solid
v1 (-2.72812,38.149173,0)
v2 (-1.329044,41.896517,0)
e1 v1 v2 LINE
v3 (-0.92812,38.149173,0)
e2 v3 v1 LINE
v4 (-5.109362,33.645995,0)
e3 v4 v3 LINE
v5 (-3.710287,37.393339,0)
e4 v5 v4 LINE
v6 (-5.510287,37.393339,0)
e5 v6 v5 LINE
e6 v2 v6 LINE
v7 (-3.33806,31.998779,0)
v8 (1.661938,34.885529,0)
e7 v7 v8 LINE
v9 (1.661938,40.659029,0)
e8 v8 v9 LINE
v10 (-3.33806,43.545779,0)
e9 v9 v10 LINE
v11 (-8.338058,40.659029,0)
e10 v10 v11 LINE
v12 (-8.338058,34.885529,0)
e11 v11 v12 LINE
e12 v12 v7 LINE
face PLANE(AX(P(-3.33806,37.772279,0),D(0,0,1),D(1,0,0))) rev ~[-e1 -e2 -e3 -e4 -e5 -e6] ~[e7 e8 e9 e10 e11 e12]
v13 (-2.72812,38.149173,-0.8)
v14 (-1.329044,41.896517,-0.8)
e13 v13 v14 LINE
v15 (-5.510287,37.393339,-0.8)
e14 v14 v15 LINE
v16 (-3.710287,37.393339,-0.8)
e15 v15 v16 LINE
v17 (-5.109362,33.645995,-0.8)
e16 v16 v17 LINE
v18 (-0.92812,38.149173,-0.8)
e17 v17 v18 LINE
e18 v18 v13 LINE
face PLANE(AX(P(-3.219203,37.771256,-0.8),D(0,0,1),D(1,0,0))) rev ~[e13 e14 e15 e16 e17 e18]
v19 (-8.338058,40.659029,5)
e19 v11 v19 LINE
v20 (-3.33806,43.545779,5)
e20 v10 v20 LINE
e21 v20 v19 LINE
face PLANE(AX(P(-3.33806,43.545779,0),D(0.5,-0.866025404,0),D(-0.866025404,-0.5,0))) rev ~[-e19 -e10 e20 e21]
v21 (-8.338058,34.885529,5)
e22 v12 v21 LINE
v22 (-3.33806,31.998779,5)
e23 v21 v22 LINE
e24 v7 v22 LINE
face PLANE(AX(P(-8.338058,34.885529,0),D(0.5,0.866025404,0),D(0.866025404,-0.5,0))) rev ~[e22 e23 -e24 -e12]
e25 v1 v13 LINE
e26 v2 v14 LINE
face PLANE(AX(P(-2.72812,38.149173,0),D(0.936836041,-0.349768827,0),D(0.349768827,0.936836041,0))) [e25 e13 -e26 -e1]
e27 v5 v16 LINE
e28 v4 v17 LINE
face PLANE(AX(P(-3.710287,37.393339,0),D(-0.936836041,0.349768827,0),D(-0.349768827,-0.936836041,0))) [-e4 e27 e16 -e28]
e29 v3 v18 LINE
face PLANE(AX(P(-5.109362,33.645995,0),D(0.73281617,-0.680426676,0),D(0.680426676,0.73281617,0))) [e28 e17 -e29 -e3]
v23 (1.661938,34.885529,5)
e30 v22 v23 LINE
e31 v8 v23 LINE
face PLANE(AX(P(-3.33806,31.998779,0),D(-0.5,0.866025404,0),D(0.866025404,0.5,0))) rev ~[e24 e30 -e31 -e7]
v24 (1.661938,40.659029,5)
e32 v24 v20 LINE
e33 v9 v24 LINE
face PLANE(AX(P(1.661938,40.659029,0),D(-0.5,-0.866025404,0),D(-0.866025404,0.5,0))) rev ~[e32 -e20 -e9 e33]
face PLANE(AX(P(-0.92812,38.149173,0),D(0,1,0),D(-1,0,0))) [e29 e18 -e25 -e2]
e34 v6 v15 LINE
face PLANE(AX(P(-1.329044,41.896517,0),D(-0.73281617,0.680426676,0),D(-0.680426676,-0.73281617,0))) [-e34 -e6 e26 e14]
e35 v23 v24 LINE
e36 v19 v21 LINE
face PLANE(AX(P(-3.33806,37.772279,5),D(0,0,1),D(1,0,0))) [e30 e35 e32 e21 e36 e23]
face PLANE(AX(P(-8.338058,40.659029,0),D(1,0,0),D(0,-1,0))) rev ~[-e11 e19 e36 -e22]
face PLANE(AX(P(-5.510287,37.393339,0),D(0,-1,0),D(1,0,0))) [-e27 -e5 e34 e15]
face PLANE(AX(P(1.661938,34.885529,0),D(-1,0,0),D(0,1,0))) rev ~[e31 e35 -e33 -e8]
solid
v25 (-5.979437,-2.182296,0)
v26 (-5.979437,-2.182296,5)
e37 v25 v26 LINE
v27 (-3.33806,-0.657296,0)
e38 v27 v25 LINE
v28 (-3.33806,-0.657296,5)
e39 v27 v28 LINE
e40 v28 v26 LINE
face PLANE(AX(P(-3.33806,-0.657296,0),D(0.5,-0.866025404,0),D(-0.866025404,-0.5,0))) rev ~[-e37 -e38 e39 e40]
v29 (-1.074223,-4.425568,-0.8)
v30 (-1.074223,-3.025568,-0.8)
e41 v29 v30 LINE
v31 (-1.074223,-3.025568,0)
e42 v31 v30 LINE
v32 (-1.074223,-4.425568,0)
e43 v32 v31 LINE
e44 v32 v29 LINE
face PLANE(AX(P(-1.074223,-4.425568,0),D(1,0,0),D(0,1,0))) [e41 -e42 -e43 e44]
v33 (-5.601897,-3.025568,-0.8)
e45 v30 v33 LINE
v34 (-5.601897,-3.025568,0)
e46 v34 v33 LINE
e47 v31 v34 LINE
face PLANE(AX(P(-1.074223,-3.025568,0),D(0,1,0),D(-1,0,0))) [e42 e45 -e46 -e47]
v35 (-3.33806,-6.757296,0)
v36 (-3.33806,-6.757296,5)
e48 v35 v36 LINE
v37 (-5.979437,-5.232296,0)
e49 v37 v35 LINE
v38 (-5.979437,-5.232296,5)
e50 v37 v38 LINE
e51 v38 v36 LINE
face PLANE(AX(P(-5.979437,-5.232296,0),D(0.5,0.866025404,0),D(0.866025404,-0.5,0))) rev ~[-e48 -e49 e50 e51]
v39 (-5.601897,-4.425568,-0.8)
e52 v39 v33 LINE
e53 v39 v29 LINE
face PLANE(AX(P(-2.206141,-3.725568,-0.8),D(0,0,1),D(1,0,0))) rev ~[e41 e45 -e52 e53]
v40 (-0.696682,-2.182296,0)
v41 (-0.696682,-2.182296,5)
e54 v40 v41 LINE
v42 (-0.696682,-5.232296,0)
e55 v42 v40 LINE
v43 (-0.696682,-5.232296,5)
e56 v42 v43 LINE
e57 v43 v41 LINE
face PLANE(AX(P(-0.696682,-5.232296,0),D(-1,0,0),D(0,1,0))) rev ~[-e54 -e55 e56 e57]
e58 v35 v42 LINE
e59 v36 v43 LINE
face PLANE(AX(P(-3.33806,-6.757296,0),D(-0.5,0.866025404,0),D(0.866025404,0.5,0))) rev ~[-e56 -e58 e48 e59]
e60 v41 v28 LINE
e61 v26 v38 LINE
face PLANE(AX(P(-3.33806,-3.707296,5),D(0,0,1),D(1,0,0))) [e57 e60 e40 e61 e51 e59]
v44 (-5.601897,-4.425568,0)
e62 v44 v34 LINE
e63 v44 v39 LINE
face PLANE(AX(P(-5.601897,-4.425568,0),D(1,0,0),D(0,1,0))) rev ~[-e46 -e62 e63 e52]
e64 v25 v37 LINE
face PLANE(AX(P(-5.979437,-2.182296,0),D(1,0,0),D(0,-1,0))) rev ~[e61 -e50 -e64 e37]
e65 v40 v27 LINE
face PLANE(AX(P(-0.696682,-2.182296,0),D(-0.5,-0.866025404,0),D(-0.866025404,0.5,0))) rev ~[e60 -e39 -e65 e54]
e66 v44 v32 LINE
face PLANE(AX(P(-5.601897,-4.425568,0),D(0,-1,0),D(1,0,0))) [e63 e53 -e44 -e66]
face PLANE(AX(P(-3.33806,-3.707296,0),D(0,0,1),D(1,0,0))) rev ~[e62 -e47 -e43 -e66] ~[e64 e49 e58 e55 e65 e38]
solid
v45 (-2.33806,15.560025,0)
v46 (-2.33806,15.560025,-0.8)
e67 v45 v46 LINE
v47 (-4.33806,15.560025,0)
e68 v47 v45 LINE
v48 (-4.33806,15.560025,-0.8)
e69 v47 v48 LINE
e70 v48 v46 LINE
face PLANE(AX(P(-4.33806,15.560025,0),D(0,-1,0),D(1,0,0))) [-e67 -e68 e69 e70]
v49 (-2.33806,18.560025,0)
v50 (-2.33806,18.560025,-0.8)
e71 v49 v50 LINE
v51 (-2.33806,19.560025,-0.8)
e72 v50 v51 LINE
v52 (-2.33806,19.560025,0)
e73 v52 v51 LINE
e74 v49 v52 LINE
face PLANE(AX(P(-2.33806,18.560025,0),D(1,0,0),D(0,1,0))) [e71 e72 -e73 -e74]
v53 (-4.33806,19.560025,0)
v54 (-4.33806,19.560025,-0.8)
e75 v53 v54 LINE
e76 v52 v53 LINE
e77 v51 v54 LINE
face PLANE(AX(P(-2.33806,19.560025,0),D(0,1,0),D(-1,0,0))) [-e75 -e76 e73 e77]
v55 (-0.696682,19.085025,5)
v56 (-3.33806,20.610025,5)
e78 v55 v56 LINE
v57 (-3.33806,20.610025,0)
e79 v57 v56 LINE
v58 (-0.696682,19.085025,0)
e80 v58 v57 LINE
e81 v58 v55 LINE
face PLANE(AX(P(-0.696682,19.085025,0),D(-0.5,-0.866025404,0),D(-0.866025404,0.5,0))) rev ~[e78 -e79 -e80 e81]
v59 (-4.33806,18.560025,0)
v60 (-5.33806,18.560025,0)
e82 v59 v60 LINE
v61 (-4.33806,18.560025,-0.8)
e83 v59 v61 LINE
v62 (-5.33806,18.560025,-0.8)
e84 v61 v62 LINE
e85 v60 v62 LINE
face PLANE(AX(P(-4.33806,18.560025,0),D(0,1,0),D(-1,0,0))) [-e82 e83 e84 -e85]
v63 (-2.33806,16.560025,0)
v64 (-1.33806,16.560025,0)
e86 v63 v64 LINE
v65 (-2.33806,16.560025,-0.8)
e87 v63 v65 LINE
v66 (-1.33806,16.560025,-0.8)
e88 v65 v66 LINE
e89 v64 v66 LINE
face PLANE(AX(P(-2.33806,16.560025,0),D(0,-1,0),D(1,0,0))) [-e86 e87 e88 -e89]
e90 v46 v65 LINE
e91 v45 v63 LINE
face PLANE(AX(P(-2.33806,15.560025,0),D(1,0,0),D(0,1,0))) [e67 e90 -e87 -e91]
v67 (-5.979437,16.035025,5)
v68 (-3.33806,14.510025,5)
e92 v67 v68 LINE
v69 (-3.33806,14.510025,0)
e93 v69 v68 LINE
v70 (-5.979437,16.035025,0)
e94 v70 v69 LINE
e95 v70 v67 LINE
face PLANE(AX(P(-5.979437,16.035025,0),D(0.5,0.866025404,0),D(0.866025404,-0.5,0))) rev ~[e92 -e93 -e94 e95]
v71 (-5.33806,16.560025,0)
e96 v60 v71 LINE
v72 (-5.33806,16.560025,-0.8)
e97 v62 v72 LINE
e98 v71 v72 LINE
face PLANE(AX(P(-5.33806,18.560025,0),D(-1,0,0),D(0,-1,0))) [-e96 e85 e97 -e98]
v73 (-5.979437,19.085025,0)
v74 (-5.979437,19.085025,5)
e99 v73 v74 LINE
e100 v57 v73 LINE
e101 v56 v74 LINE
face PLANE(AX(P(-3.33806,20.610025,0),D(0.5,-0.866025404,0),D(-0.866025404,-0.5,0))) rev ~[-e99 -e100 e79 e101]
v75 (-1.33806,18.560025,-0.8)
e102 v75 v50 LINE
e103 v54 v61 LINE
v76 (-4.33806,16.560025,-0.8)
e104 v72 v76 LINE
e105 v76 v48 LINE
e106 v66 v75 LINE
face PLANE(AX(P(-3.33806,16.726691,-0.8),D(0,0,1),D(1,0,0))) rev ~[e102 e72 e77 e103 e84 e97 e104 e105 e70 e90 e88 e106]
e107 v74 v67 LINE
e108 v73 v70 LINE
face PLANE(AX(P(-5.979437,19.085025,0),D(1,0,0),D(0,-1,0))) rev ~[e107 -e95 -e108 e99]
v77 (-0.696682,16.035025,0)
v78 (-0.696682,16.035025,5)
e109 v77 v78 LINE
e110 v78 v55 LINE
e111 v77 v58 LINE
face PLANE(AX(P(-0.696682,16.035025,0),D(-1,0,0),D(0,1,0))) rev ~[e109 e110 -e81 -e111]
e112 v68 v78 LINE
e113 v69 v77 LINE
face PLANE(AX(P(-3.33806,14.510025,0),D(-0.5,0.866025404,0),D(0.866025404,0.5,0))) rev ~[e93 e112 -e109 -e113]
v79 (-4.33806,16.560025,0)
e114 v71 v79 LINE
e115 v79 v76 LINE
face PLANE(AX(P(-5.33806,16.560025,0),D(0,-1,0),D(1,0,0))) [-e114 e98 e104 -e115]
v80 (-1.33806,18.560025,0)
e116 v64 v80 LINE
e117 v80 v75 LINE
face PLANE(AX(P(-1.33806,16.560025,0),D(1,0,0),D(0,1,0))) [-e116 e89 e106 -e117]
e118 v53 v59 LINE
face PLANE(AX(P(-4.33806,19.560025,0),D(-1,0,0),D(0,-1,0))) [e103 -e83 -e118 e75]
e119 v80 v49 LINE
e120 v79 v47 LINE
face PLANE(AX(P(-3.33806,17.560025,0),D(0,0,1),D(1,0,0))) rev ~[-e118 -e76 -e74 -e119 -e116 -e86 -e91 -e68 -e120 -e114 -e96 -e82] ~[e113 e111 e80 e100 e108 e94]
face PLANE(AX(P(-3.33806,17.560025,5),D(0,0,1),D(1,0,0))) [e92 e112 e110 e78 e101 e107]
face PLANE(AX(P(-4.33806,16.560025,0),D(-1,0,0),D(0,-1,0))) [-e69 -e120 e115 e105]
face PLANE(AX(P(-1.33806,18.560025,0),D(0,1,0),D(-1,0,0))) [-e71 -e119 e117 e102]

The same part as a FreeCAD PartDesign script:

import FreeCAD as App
import Part
import Sketcher
Q = App.Units.Quantity

doc = App.newDocument("Part")
body = doc.addObject("PartDesign::Body", "Body")

# Sketch on XY plane
sketch1 = body.newObject("Sketcher::SketchObject", "Sketch")
sketch1.AttachmentSupport = (doc.getObject("XY_Plane"), [""])
sketch1.MapMode = "FlatFace"
sketch1.addGeometry(Part.LineSegment(App.Vector(-3.33806, 14.510025, 0), App.Vector(-0.696682, 16.035025, 0)), False)
sketch1.addGeometry(Part.LineSegment(App.Vector(-0.696682, 16.035025, 0), App.Vector(-0.696682, 19.085025, 0)), False)
sketch1.addGeometry(Part.LineSegment(App.Vector(-0.696682, 19.085025, 0), App.Vector(-3.33806, 20.610025, 0)), False)
sketch1.addGeometry(Part.LineSegment(App.Vector(-3.33806, 20.610025, 0), App.Vector(-5.979437, 19.085025, 0)), False)
sketch1.addGeometry(Part.LineSegment(App.Vector(-5.979437, 19.085025, 0), App.Vector(-5.979437, 16.035025, 0)), False)
sketch1.addGeometry(Part.LineSegment(App.Vector(-5.979437, 16.035025, 0), App.Vector(-3.33806, 14.510025, 0)), False)
sketch1.addConstraint(Sketcher.Constraint("Coincident", 0, 2, 1, 1))
sketch1.addConstraint(Sketcher.Constraint("Coincident", 1, 2, 2, 1))
sketch1.addConstraint(Sketcher.Constraint("Coincident", 2, 2, 3, 1))
sketch1.addConstraint(Sketcher.Constraint("Coincident", 3, 2, 4, 1))
sketch1.addConstraint(Sketcher.Constraint("Coincident", 4, 2, 5, 1))
sketch1.addConstraint(Sketcher.Constraint("Coincident", 5, 2, 0, 1))
sketch1.addConstraint(Sketcher.Constraint("Vertical", 1))
sketch1.addConstraint(Sketcher.Constraint("Vertical", 4))
sketch1.addConstraint(Sketcher.Constraint("Parallel", 0, 3))
sketch1.addConstraint(Sketcher.Constraint("Parallel", 2, 5))
sketch1.addConstraint(Sketcher.Constraint("Horizontal", 1, 2, 3, 2))
sketch1.addConstraint(Sketcher.Constraint("Horizontal", 0, 2, 4, 2))
sketch1.addConstraint(Sketcher.Constraint("Vertical", 2, 2, 5, 2))
sketch1.addConstraint(Sketcher.Constraint("Angle", 0, Q("30 deg")))
sketch1.addConstraint(Sketcher.Constraint("DistanceY", 1, 1, 1, 2, 3.05))
sketch1.addConstraint(Sketcher.Constraint("DistanceY", 5, 2, 2, 2, 6.1))
sketch1.addConstraint(Sketcher.Constraint("DistanceX", 2, 2, -1, 1, 3.33806))
sketch1.addConstraint(Sketcher.Constraint("DistanceY", -1, 1, 0, 2, 16.035025))
pad1 = body.newObject("PartDesign::Pad", "Pad")
pad1.Profile = sketch1
pad1.Length = 5

# Sketch on XY plane
sketch2 = body.newObject("Sketcher::SketchObject", "Sketch001")
sketch2.AttachmentSupport = (doc.getObject("XY_Plane"), [""])
sketch2.MapMode = "FlatFace"
sketch2.addGeometry(Part.LineSegment(App.Vector(-5.33806, 16.560025, 0), App.Vector(-4.33806, 16.560025, 0)), False)
sketch2.addGeometry(Part.LineSegment(App.Vector(-4.33806, 16.560025, 0), App.Vector(-4.33806, 15.560025, 0)), False)
sketch2.addGeometry(Part.LineSegment(App.Vector(-4.33806, 15.560025, 0), App.Vector(-2.33806, 15.560025, 0)), False)
sketch2.addGeometry(Part.LineSegment(App.Vector(-2.33806, 15.560025, 0), App.Vector(-2.33806, 16.560025, 0)), False)
sketch2.addGeometry(Part.LineSegment(App.Vector(-2.33806, 16.560025, 0), App.Vector(-1.33806, 16.560025, 0)), False)
sketch2.addGeometry(Part.LineSegment(App.Vector(-1.33806, 16.560025, 0), App.Vector(-1.33806, 18.560025, 0)), False)
sketch2.addGeometry(Part.LineSegment(App.Vector(-1.33806, 18.560025, 0), App.Vector(-2.33806, 18.560025, 0)), False)
sketch2.addGeometry(Part.LineSegment(App.Vector(-2.33806, 18.560025, 0), App.Vector(-2.33806, 19.560025, 0)), False)
sketch2.addGeometry(Part.LineSegment(App.Vector(-2.33806, 19.560025, 0), App.Vector(-4.33806, 19.560025, 0)), False)
sketch2.addGeometry(Part.LineSegment(App.Vector(-4.33806, 19.560025, 0), App.Vector(-4.33806, 18.560025, 0)), False)
sketch2.addGeometry(Part.LineSegment(App.Vector(-4.33806, 18.560025, 0), App.Vector(-5.33806, 18.560025, 0)), False)
sketch2.addGeometry(Part.LineSegment(App.Vector(-5.33806, 18.560025, 0), App.Vector(-5.33806, 16.560025, 0)), False)
sketch2.addConstraint(Sketcher.Constraint("Coincident", 0, 2, 1, 1))
sketch2.addConstraint(Sketcher.Constraint("Coincident", 1, 2, 2, 1))
sketch2.addConstraint(Sketcher.Constraint("Coincident", 2, 2, 3, 1))
sketch2.addConstraint(Sketcher.Constraint("Coincident", 3, 2, 4, 1))
sketch2.addConstraint(Sketcher.Constraint("Coincident", 4, 2, 5, 1))
sketch2.addConstraint(Sketcher.Constraint("Coincident", 5, 2, 6, 1))
sketch2.addConstraint(Sketcher.Constraint("Coincident", 6, 2, 7, 1))
sketch2.addConstraint(Sketcher.Constraint("Coincident", 7, 2, 8, 1))
sketch2.addConstraint(Sketcher.Constraint("Coincident", 8, 2, 9, 1))
sketch2.addConstraint(Sketcher.Constraint("Coincident", 9, 2, 10, 1))
sketch2.addConstraint(Sketcher.Constraint("Coincident", 10, 2, 11, 1))
sketch2.addConstraint(Sketcher.Constraint("Coincident", 11, 2, 0, 1))
sketch2.addConstraint(Sketcher.Constraint("Horizontal", 0))
sketch2.addConstraint(Sketcher.Constraint("Vertical", 1))
sketch2.addConstraint(Sketcher.Constraint("Horizontal", 2))
sketch2.addConstraint(Sketcher.Constraint("Vertical", 3))
sketch2.addConstraint(Sketcher.Constraint("Horizontal", 4))
sketch2.addConstraint(Sketcher.Constraint("Vertical", 5))
sketch2.addConstraint(Sketcher.Constraint("Horizontal", 6))
sketch2.addConstraint(Sketcher.Constraint("Vertical", 7))
sketch2.addConstraint(Sketcher.Constraint("Horizontal", 8))
sketch2.addConstraint(Sketcher.Constraint("Vertical", 9))
sketch2.addConstraint(Sketcher.Constraint("Horizontal", 10))
sketch2.addConstraint(Sketcher.Constraint("Vertical", 11))
sketch2.addConstraint(Sketcher.Constraint("Horizontal", 0, 2, 3, 2))
sketch2.addConstraint(Sketcher.Constraint("Horizontal", 6, 2, 9, 2))
sketch2.addConstraint(Sketcher.Constraint("Vertical", 3, 2, 6, 2))
sketch2.addConstraint(Sketcher.Constraint("Vertical", 1, 2, 8, 2))
sketch2.addConstraint(Sketcher.Constraint("Equal", 0, 4))
sketch2.addConstraint(Sketcher.Constraint("Equal", 10, 1))
sketch2.addConstraint(Sketcher.Constraint("Equal", 8, 5))
sketch2.addConstraint(Sketcher.Constraint("Equal", 3, 7))
sketch2.addConstraint(Sketcher.Constraint("DistanceX", 0, 1, 0, 2, 1.0))
sketch2.addConstraint(Sketcher.Constraint("DistanceX", 2, 1, 2, 2, 2.0))
sketch2.addConstraint(Sketcher.Constraint("DistanceX", 0, 2, -1, 1, 4.33806))
sketch2.addConstraint(Sketcher.Constraint("DistanceY", -1, 1, 0, 2, 16.560025))
pad2 = body.newObject("PartDesign::Pad", "Pad001")
pad2.Profile = sketch2
pad2.Length = 0.8
pad2.Reversed = True
body2 = doc.addObject("PartDesign::Body", "Body001")

# Sketch on XY plane
sketch3 = body2.newObject("Sketcher::SketchObject", "Sketch002")
sketch3.AttachmentSupport = (doc.getObject("XY_Plane001"), [""])
sketch3.MapMode = "FlatFace"
sketch3.addGeometry(Part.LineSegment(App.Vector(-5.979437, -5.232296, 0), App.Vector(-3.33806, -6.757296, 0)), False)
sketch3.addGeometry(Part.LineSegment(App.Vector(-3.33806, -6.757296, 0), App.Vector(-0.696682, -5.232296, 0)), False)
sketch3.addGeometry(Part.LineSegment(App.Vector(-0.696682, -5.232296, 0), App.Vector(-0.696682, -2.182296, 0)), False)
sketch3.addGeometry(Part.LineSegment(App.Vector(-0.696682, -2.182296, 0), App.Vector(-3.33806, -0.657296, 0)), False)
sketch3.addGeometry(Part.LineSegment(App.Vector(-3.33806, -0.657296, 0), App.Vector(-5.979437, -2.182296, 0)), False)
sketch3.addGeometry(Part.LineSegment(App.Vector(-5.979437, -2.182296, 0), App.Vector(-5.979437, -5.232296, 0)), False)
sketch3.addConstraint(Sketcher.Constraint("Coincident", 0, 2, 1, 1))
sketch3.addConstraint(Sketcher.Constraint("Coincident", 1, 2, 2, 1))
sketch3.addConstraint(Sketcher.Constraint("Coincident", 2, 2, 3, 1))
sketch3.addConstraint(Sketcher.Constraint("Coincident", 3, 2, 4, 1))
sketch3.addConstraint(Sketcher.Constraint("Coincident", 4, 2, 5, 1))
sketch3.addConstraint(Sketcher.Constraint("Coincident", 5, 2, 0, 1))
sketch3.addConstraint(Sketcher.Constraint("Vertical", 2))
sketch3.addConstraint(Sketcher.Constraint("Vertical", 5))
sketch3.addConstraint(Sketcher.Constraint("Parallel", 0, 3))
sketch3.addConstraint(Sketcher.Constraint("Parallel", 1, 4))
sketch3.addConstraint(Sketcher.Constraint("Horizontal", 2, 2, 4, 2))
sketch3.addConstraint(Sketcher.Constraint("Horizontal", 1, 2, 5, 2))
sketch3.addConstraint(Sketcher.Constraint("Vertical", 0, 2, 3, 2))
sketch3.addConstraint(Sketcher.Constraint("Angle", 0, Q("-30 deg")))
sketch3.addConstraint(Sketcher.Constraint("DistanceY", 2, 1, 2, 2, 3.05))
sketch3.addConstraint(Sketcher.Constraint("DistanceY", 0, 2, 3, 2, 6.1))
sketch3.addConstraint(Sketcher.Constraint("DistanceX", 0, 2, -1, 1, 3.33806))
sketch3.addConstraint(Sketcher.Constraint("DistanceY", 0, 2, -1, 1, 6.757296))
pad3 = body2.newObject("PartDesign::Pad", "Pad002")
pad3.Profile = sketch3
pad3.Length = 5

# Sketch on XY plane
sketch4 = body2.newObject("Sketcher::SketchObject", "Sketch003")
sketch4.AttachmentSupport = (doc.getObject("XY_Plane001"), [""])
sketch4.MapMode = "FlatFace"
sketch4.addGeometry(Part.LineSegment(App.Vector(-1.074223, -4.425568, 0), App.Vector(-1.074223, -3.025568, 0)), False)
sketch4.addGeometry(Part.LineSegment(App.Vector(-1.074223, -3.025568, 0), App.Vector(-5.601897, -3.025568, 0)), False)
sketch4.addGeometry(Part.LineSegment(App.Vector(-5.601897, -3.025568, 0), App.Vector(-5.601897, -4.425568, 0)), False)
sketch4.addGeometry(Part.LineSegment(App.Vector(-5.601897, -4.425568, 0), App.Vector(-1.074223, -4.425568, 0)), False)
sketch4.addConstraint(Sketcher.Constraint("Coincident", 0, 2, 1, 1))
sketch4.addConstraint(Sketcher.Constraint("Coincident", 1, 2, 2, 1))
sketch4.addConstraint(Sketcher.Constraint("Coincident", 2, 2, 3, 1))
sketch4.addConstraint(Sketcher.Constraint("Coincident", 3, 2, 0, 1))
sketch4.addConstraint(Sketcher.Constraint("Vertical", 0))
sketch4.addConstraint(Sketcher.Constraint("Horizontal", 1))
sketch4.addConstraint(Sketcher.Constraint("Vertical", 2))
sketch4.addConstraint(Sketcher.Constraint("Horizontal", 3))
sketch4.addConstraint(Sketcher.Constraint("DistanceY", 0, 1, 0, 2, 1.4))
sketch4.addConstraint(Sketcher.Constraint("DistanceX", 1, 2, 1, 1, 4.527674))
sketch4.addConstraint(Sketcher.Constraint("DistanceY", 0, 2, -1, 1, 3.025568))
sketch4.addConstraint(Sketcher.Constraint("DistanceX", 0, 2, -1, 1, 1.074223))
pad4 = body2.newObject("PartDesign::Pad", "Pad003")
pad4.Profile = sketch4
pad4.Length = 0.8
pad4.Reversed = True
body3 = doc.addObject("PartDesign::Body", "Body002")

# Sketch on XY plane
sketch5 = body3.newObject("Sketcher::SketchObject", "Sketch004")
sketch5.AttachmentSupport = (doc.getObject("XY_Plane002"), [""])
sketch5.MapMode = "FlatFace"
sketch5.addGeometry(Part.LineSegment(App.Vector(-8.338058, 34.885529, 0), App.Vector(-3.33806, 31.998779, 0)), False)
sketch5.addGeometry(Part.LineSegment(App.Vector(-3.33806, 31.998779, 0), App.Vector(1.661938, 34.885529, 0)), False)
sketch5.addGeometry(Part.LineSegment(App.Vector(1.661938, 34.885529, 0), App.Vector(1.661938, 40.659029, 0)), False)
sketch5.addGeometry(Part.LineSegment(App.Vector(1.661938, 40.659029, 0), App.Vector(-3.33806, 43.545779, 0)), False)
sketch5.addGeometry(Part.LineSegment(App.Vector(-3.33806, 43.545779, 0), App.Vector(-8.338058, 40.659029, 0)), False)
sketch5.addGeometry(Part.LineSegment(App.Vector(-8.338058, 40.659029, 0), App.Vector(-8.338058, 34.885529, 0)), False)
sketch5.addConstraint(Sketcher.Constraint("Coincident", 0, 2, 1, 1))
sketch5.addConstraint(Sketcher.Constraint("Coincident", 1, 2, 2, 1))
sketch5.addConstraint(Sketcher.Constraint("Coincident", 2, 2, 3, 1))
sketch5.addConstraint(Sketcher.Constraint("Coincident", 3, 2, 4, 1))
sketch5.addConstraint(Sketcher.Constraint("Coincident", 4, 2, 5, 1))
sketch5.addConstraint(Sketcher.Constraint("Coincident", 5, 2, 0, 1))
sketch5.addConstraint(Sketcher.Constraint("Vertical", 2))
sketch5.addConstraint(Sketcher.Constraint("Vertical", 5))
sketch5.addConstraint(Sketcher.Constraint("Parallel", 0, 3))
sketch5.addConstraint(Sketcher.Constraint("Parallel", 1, 4))
sketch5.addConstraint(Sketcher.Constraint("Horizontal", 2, 2, 4, 2))
sketch5.addConstraint(Sketcher.Constraint("Horizontal", 1, 2, 5, 2))
sketch5.addConstraint(Sketcher.Constraint("Vertical", 0, 2, 3, 2))
sketch5.addConstraint(Sketcher.Constraint("Angle", 0, Q("-30 deg")))
sketch5.addConstraint(Sketcher.Constraint("DistanceY", 2, 1, 2, 2, 5.7735))
sketch5.addConstraint(Sketcher.Constraint("DistanceY", 0, 2, 3, 2, 11.547))
sketch5.addConstraint(Sketcher.Constraint("DistanceX", 0, 2, -1, 1, 3.33806))
sketch5.addConstraint(Sketcher.Constraint("DistanceY", -1, 1, 0, 2, 31.998779))
pad5 = body3.newObject("PartDesign::Pad", "Pad004")
pad5.Profile = sketch5
pad5.Length = 5

# Sketch on XY plane
sketch6 = body3.newObject("Sketcher::SketchObject", "Sketch005")
sketch6.AttachmentSupport = (doc.getObject("XY_Plane002"), [""])
sketch6.MapMode = "FlatFace"
sketch6.addGeometry(Part.LineSegment(App.Vector(-0.92812, 38.149173, 0), App.Vector(-2.72812, 38.149173, 0)), False)
sketch6.addGeometry(Part.LineSegment(App.Vector(-2.72812, 38.149173, 0), App.Vector(-1.329044, 41.896517, 0)), False)
sketch6.addGeometry(Part.LineSegment(App.Vector(-1.329044, 41.896517, 0), App.Vector(-5.510287, 37.393339, 0)), False)
sketch6.addGeometry(Part.LineSegment(App.Vector(-5.510287, 37.393339, 0), App.Vector(-3.710287, 37.393339, 0)), False)
sketch6.addGeometry(Part.LineSegment(App.Vector(-3.710287, 37.393339, 0), App.Vector(-5.109362, 33.645995, 0)), False)
sketch6.addGeometry(Part.LineSegment(App.Vector(-5.109362, 33.645995, 0), App.Vector(-0.92812, 38.149173, 0)), False)
sketch6.addConstraint(Sketcher.Constraint("Coincident", 0, 2, 1, 1))
sketch6.addConstraint(Sketcher.Constraint("Coincident", 1, 2, 2, 1))
sketch6.addConstraint(Sketcher.Constraint("Coincident", 2, 2, 3, 1))
sketch6.addConstraint(Sketcher.Constraint("Coincident", 3, 2, 4, 1))
sketch6.addConstraint(Sketcher.Constraint("Coincident", 4, 2, 5, 1))
sketch6.addConstraint(Sketcher.Constraint("Coincident", 5, 2, 0, 1))
sketch6.addConstraint(Sketcher.Constraint("Horizontal", 0))
sketch6.addConstraint(Sketcher.Constraint("Horizontal", 3))
sketch6.addConstraint(Sketcher.Constraint("Parallel", 1, 4))
sketch6.addConstraint(Sketcher.Constraint("Parallel", 2, 5))
sketch6.addConstraint(Sketcher.Constraint("Equal", 0, 3))
sketch6.addConstraint(Sketcher.Constraint("Distance", 1, 4.0))
sketch6.addConstraint(Sketcher.Constraint("DistanceX", 0, 2, 0, 1, 1.8))
sketch6.addConstraint(Sketcher.Constraint("Distance", 2, 6.14503))
sketch6.addConstraint(Sketcher.Constraint("DistanceX", 0, 2, -1, 1, 2.72812))
sketch6.addConstraint(Sketcher.Constraint("DistanceY", -1, 1, 2, 2, 37.393339))
sketch6.addConstraint(Sketcher.Constraint("DistanceY", 4, 2, 1, 2, 8.250522))
sketch6.addConstraint(Sketcher.Constraint("DistanceY", -1, 1, 0, 2, 38.149173))
pad6 = body3.newObject("PartDesign::Pad", "Pad005")
pad6.Profile = sketch6
pad6.Length = 0.8
pad6.Reversed = True

doc.recompute()
